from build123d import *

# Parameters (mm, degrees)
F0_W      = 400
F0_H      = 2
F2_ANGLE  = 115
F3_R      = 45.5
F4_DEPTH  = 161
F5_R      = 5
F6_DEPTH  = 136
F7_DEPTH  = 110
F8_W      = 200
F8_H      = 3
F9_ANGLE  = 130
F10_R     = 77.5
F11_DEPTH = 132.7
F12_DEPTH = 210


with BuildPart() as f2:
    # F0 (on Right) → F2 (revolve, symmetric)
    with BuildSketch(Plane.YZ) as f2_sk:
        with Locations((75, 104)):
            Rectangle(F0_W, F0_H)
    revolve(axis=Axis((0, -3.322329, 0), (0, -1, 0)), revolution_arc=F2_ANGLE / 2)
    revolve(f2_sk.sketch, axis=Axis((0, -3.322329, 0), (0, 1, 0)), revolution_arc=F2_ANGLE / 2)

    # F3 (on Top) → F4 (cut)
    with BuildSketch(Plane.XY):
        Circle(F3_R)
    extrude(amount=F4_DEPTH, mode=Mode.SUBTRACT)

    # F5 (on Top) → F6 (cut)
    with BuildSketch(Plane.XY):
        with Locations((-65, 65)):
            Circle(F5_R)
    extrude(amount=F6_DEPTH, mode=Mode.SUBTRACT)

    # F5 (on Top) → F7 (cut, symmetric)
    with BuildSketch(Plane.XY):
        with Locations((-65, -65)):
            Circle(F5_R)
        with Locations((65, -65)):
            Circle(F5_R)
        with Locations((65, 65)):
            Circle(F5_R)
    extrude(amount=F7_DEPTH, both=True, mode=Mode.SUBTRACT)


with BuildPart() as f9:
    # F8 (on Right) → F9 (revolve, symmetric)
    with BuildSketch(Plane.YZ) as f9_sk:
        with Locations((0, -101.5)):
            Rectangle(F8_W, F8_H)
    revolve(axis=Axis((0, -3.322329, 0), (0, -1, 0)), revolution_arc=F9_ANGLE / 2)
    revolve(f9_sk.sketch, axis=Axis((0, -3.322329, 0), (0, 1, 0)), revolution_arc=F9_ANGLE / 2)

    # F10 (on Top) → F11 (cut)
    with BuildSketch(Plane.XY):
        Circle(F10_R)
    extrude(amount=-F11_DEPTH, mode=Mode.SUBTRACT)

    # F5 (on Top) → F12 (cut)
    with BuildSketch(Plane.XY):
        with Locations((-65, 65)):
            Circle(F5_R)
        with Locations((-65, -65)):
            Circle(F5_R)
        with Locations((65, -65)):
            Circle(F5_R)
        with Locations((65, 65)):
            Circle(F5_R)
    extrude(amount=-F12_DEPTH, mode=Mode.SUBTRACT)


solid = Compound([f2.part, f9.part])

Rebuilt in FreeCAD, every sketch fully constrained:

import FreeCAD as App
import Part
import Sketcher

V = App.Vector

doc = App.newDocument("Part")
body = doc.addObject("PartDesign::Body", "Body")

# Sketch on YZ plane
sketch1 = body.newObject("Sketcher::SketchObject", "Sketch")
sketch1.AttachmentSupport = (doc.getObject("YZ_Plane"), [""])
sketch1.MapMode = "FlatFace"
sketch1.addGeometry(Part.LineSegment(V(-125, 105, 0), V(-125, 103, 0)), False)
sketch1.addGeometry(Part.LineSegment(V(-125, 103, 0), V(275, 103, 0)), False)
sketch1.addGeometry(Part.LineSegment(V(275, 103, 0), V(275, 105, 0)), False)
sketch1.addGeometry(Part.LineSegment(V(275, 105, 0), V(-125, 105, 0)), False)
sketch1.addConstraint(Sketcher.Constraint("Coincident", 0, 2, 1, 1))
sketch1.addConstraint(Sketcher.Constraint("Coincident", 1, 2, 2, 1))
sketch1.addConstraint(Sketcher.Constraint("Coincident", 2, 2, 3, 1))
sketch1.addConstraint(Sketcher.Constraint("Coincident", 3, 2, 0, 1))
sketch1.addConstraint(Sketcher.Constraint("Vertical", 0))
sketch1.addConstraint(Sketcher.Constraint("Horizontal", 1))
sketch1.addConstraint(Sketcher.Constraint("Vertical", 2))
sketch1.addConstraint(Sketcher.Constraint("Horizontal", 3))
sketch1.addConstraint(Sketcher.Constraint("DistanceX", 1, 1, 1, 2, 400.0))
sketch1.addConstraint(Sketcher.Constraint("DistanceY", 0, 2, 0, 1, 2.0))
sketch1.addConstraint(Sketcher.Constraint("DistanceX", 0, 2, -1, 1, 125.0))
sketch1.addConstraint(Sketcher.Constraint("DistanceY", -1, 1, 0, 2, 103.0))
revolution = body.newObject("PartDesign::Revolution", "Revolution")
revolution.Profile = sketch1
revolution.ReferenceAxis = (sketch1, ["H_Axis"])
revolution.Angle = 57.5
revolution.Reversed = True

# Sketch on YZ plane
sketch2 = body.newObject("Sketcher::SketchObject", "Sketch001")
sketch2.AttachmentSupport = (doc.getObject("YZ_Plane"), [""])
sketch2.MapMode = "FlatFace"
sketch2.addGeometry(Part.LineSegment(V(-125, 105, 0), V(-125, 103, 0)), False)
sketch2.addGeometry(Part.LineSegment(V(-125, 103, 0), V(275, 103, 0)), False)
sketch2.addGeometry(Part.LineSegment(V(275, 103, 0), V(275, 105, 0)), False)
sketch2.addGeometry(Part.LineSegment(V(275, 105, 0), V(-125, 105, 0)), False)
sketch2.addConstraint(Sketcher.Constraint("Coincident", 0, 2, 1, 1))
sketch2.addConstraint(Sketcher.Constraint("Coincident", 1, 2, 2, 1))
sketch2.addConstraint(Sketcher.Constraint("Coincident", 2, 2, 3, 1))
sketch2.addConstraint(Sketcher.Constraint("Coincident", 3, 2, 0, 1))
sketch2.addConstraint(Sketcher.Constraint("Vertical", 0))
sketch2.addConstraint(Sketcher.Constraint("Horizontal", 1))
sketch2.addConstraint(Sketcher.Constraint("Vertical", 2))
sketch2.addConstraint(Sketcher.Constraint("Horizontal", 3))
sketch2.addConstraint(Sketcher.Constraint("DistanceX", 1, 1, 1, 2, 400.0))
sketch2.addConstraint(Sketcher.Constraint("DistanceY", 0, 2, 0, 1, 2.0))
sketch2.addConstraint(Sketcher.Constraint("DistanceX", 0, 2, -1, 1, 125.0))
sketch2.addConstraint(Sketcher.Constraint("DistanceY", -1, 1, 0, 2, 103.0))
revolution2 = body.newObject("PartDesign::Revolution", "Revolution001")
revolution2.Profile = sketch2
revolution2.ReferenceAxis = (sketch2, ["H_Axis"])
revolution2.Angle = 57.5

# Sketch on XY plane
sketch3 = body.newObject("Sketcher::SketchObject", "Sketch002")
sketch3.AttachmentSupport = (doc.getObject("XY_Plane"), [""])
sketch3.MapMode = "FlatFace"
sketch3.addGeometry(Part.Circle(V(0, 0, 0), V(0, 0, 1), 46), False)
sketch3.addConstraint(Sketcher.Constraint("Coincident", 0, 3, -1, 1))
sketch3.addConstraint(Sketcher.Constraint("Diameter", 0, 91.0))
pocket1 = body.newObject("PartDesign::Pocket", "Pocket")
pocket1.Profile = sketch3
pocket1.Length = 161
pocket1.Reversed = True

# Sketch on XY plane
sketch4 = body.newObject("Sketcher::SketchObject", "Sketch003")
sketch4.AttachmentSupport = (doc.getObject("XY_Plane"), [""])
sketch4.MapMode = "FlatFace"
sketch4.addGeometry(Part.Circle(V(-65, 65, 0), V(0, 0, 1), 5), False)
sketch4.addConstraint(Sketcher.Constraint("Diameter", 0, 10.0))
sketch4.addConstraint(Sketcher.Constraint("DistanceX", 0, 3, -1, 1, 65.0))
sketch4.addConstraint(Sketcher.Constraint("DistanceY", -1, 1, 0, 3, 65.0))
pocket2 = body.newObject("PartDesign::Pocket", "Pocket001")
pocket2.Profile = sketch4
pocket2.Length = 136
pocket2.Reversed = True

# Sketch on XY plane
sketch5 = body.newObject("Sketcher::SketchObject", "Sketch004")
sketch5.AttachmentSupport = (doc.getObject("XY_Plane"), [""])
sketch5.MapMode = "FlatFace"
sketch5.addGeometry(Part.Circle(V(-65, -65, 0), V(0, 0, 1), 5), False)
sketch5.addGeometry(Part.Circle(V(65, -65, 0), V(0, 0, 1), 5), False)
sketch5.addGeometry(Part.Circle(V(65, 65, 0), V(0, 0, 1), 5), False)
sketch5.addConstraint(Sketcher.Constraint("Equal", 0, 1))
sketch5.addConstraint(Sketcher.Constraint("Equal", 1, 2))
sketch5.addConstraint(Sketcher.Constraint("Symmetric", 0, 3, 2, 3, -1, 1))
sketch5.addConstraint(Sketcher.Constraint("Symmetric", 0, 3, 1, 3, -2))
sketch5.addConstraint(Sketcher.Constraint("Diameter", 0, 10.0))
sketch5.addConstraint(Sketcher.Constraint("DistanceX", 0, 3, -1, 1, 65.0))
sketch5.addConstraint(Sketcher.Constraint("DistanceY", 0, 3, -1, 1, 65.0))
pocket3 = body.newObject("PartDesign::Pocket", "Pocket002")
pocket3.Profile = sketch5
pocket3.Length = 220
pocket3.Midplane = True
body2 = doc.addObject("PartDesign::Body", "Body001")

# Sketch on YZ plane
sketch6 = body2.newObject("Sketcher::SketchObject", "Sketch005")
sketch6.AttachmentSupport = (doc.getObject("YZ_Plane001"), [""])
sketch6.MapMode = "FlatFace"
sketch6.addGeometry(Part.LineSegment(V(-100, -100, 0), V(-100, -103, 0)), False)
sketch6.addGeometry(Part.LineSegment(V(-100, -103, 0), V(100, -103, 0)), False)
sketch6.addGeometry(Part.LineSegment(V(100, -103, 0), V(100, -100, 0)), False)
sketch6.addGeometry(Part.LineSegment(V(100, -100, 0), V(-100, -100, 0)), False)
sketch6.addConstraint(Sketcher.Constraint("Coincident", 0, 2, 1, 1))
sketch6.addConstraint(Sketcher.Constraint("Coincident", 1, 2, 2, 1))
sketch6.addConstraint(Sketcher.Constraint("Coincident", 2, 2, 3, 1))
sketch6.addConstraint(Sketcher.Constraint("Coincident", 3, 2, 0, 1))
sketch6.addConstraint(Sketcher.Constraint("Vertical", 0))
sketch6.addConstraint(Sketcher.Constraint("Horizontal", 1))
sketch6.addConstraint(Sketcher.Constraint("Vertical", 2))
sketch6.addConstraint(Sketcher.Constraint("Horizontal", 3))
sketch6.addConstraint(Sketcher.Constraint("DistanceX", 1, 1, 1, 2, 200.0))
sketch6.addConstraint(Sketcher.Constraint("DistanceY", 0, 2, 0, 1, 3.0))
sketch6.addConstraint(Sketcher.Constraint("DistanceX", 0, 2, -1, 1, 100.0))
sketch6.addConstraint(Sketcher.Constraint("DistanceY", 0, 2, -1, 1, 103.0))
revolution3 = body2.newObject("PartDesign::Revolution", "Revolution002")
revolution3.Profile = sketch6
revolution3.ReferenceAxis = (sketch6, ["H_Axis"])
revolution3.Angle = 65
revolution3.Reversed = True

# Sketch on YZ plane
sketch7 = body2.newObject("Sketcher::SketchObject", "Sketch006")
sketch7.AttachmentSupport = (doc.getObject("YZ_Plane001"), [""])
sketch7.MapMode = "FlatFace"
sketch7.addGeometry(Part.LineSegment(V(-100, -100, 0), V(-100, -103, 0)), False)
sketch7.addGeometry(Part.LineSegment(V(-100, -103, 0), V(100, -103, 0)), False)
sketch7.addGeometry(Part.LineSegment(V(100, -103, 0), V(100, -100, 0)), False)
sketch7.addGeometry(Part.LineSegment(V(100, -100, 0), V(-100, -100, 0)), False)
sketch7.addConstraint(Sketcher.Constraint("Coincident", 0, 2, 1, 1))
sketch7.addConstraint(Sketcher.Constraint("Coincident", 1, 2, 2, 1))
sketch7.addConstraint(Sketcher.Constraint("Coincident", 2, 2, 3, 1))
sketch7.addConstraint(Sketcher.Constraint("Coincident", 3, 2, 0, 1))
sketch7.addConstraint(Sketcher.Constraint("Vertical", 0))
sketch7.addConstraint(Sketcher.Constraint("Horizontal", 1))
sketch7.addConstraint(Sketcher.Constraint("Vertical", 2))
sketch7.addConstraint(Sketcher.Constraint("Horizontal", 3))
sketch7.addConstraint(Sketcher.Constraint("DistanceX", 1, 1, 1, 2, 200.0))
sketch7.addConstraint(Sketcher.Constraint("DistanceY", 0, 2, 0, 1, 3.0))
sketch7.addConstraint(Sketcher.Constraint("DistanceX", 0, 2, -1, 1, 100.0))
sketch7.addConstraint(Sketcher.Constraint("DistanceY", 0, 2, -1, 1, 103.0))
revolution4 = body2.newObject("PartDesign::Revolution", "Revolution003")
revolution4.Profile = sketch7
revolution4.ReferenceAxis = (sketch7, ["H_Axis"])
revolution4.Angle = 65

# Sketch on XY plane
sketch8 = body2.newObject("Sketcher::SketchObject", "Sketch007")
sketch8.AttachmentSupport = (doc.getObject("XY_Plane001"), [""])
sketch8.MapMode = "FlatFace"
sketch8.addGeometry(Part.Circle(V(0, 0, 0), V(0, 0, 1), 78), False)
sketch8.addConstraint(Sketcher.Constraint("Coincident", 0, 3, -1, 1))
sketch8.addConstraint(Sketcher.Constraint("Diameter", 0, 155.0))
pocket4 = body2.newObject("PartDesign::Pocket", "Pocket003")
pocket4.Profile = sketch8
pocket4.Length = 132.7

# Sketch on XY plane
sketch9 = body2.newObject("Sketcher::SketchObject", "Sketch008")
sketch9.AttachmentSupport = (doc.getObject("XY_Plane001"), [""])
sketch9.MapMode = "FlatFace"
sketch9.addGeometry(Part.Circle(V(-65, 65, 0), V(0, 0, 1), 5), False)
sketch9.addGeometry(Part.Circle(V(-65, -65, 0), V(0, 0, 1), 5), False)
sketch9.addGeometry(Part.Circle(V(65, -65, 0), V(0, 0, 1), 5), False)
sketch9.addGeometry(Part.Circle(V(65, 65, 0), V(0, 0, 1), 5), False)
sketch9.addConstraint(Sketcher.Constraint("Equal", 0, 1))
sketch9.addConstraint(Sketcher.Constraint("Equal", 1, 2))
sketch9.addConstraint(Sketcher.Constraint("Equal", 2, 3))
sketch9.addConstraint(Sketcher.Constraint("Symmetric", 0, 3, 2, 3, -1, 1))
sketch9.addConstraint(Sketcher.Constraint("Symmetric", 1, 3, 3, 3, -1, 1))
sketch9.addConstraint(Sketcher.Constraint("Symmetric", 1, 3, 2, 3, -2))
sketch9.addConstraint(Sketcher.Constraint("Diameter", 0, 10.0))
sketch9.addConstraint(Sketcher.Constraint("DistanceX", 0, 3, -1, 1, 65.0))
sketch9.addConstraint(Sketcher.Constraint("DistanceY", -1, 1, 0, 3, 65.0))
pocket5 = body2.newObject("PartDesign::Pocket", "Pocket004")
pocket5.Profile = sketch9
pocket5.Length = 210

doc.recompute()
